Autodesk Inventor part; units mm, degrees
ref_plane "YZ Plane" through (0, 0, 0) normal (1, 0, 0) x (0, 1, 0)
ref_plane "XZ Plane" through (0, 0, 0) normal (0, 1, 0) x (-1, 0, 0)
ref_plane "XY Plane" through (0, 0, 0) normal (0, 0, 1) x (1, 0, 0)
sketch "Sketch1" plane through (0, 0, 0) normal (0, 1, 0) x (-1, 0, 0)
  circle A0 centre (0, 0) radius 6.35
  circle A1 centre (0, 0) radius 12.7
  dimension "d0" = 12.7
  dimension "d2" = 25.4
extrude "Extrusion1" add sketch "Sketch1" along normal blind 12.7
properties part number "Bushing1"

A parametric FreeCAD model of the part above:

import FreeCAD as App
import Part
import Sketcher
Q = App.Units.Quantity

doc = App.newDocument("Part")
body = doc.addObject("PartDesign::Body", "Body")

# Sketch on XZ plane
sketch1 = body.newObject("Sketcher::SketchObject", "Sketch")
sketch1.AttachmentSupport = (doc.getObject("XZ_Plane"), [""])
sketch1.MapMode = "FlatFace"
sketch1.addGeometry(Part.Circle(App.Vector(0, 0, 0), App.Vector(0, 0, 1), 13), False)
sketch1.addGeometry(Part.Circle(App.Vector(0, 0, 0), App.Vector(0, 0, 1), 6), False)
sketch1.addConstraint(Sketcher.Constraint("Coincident", 0, 3, -1, 1))
sketch1.addConstraint(Sketcher.Constraint("Coincident", 1, 3, -1, 1))
sketch1.addConstraint(Sketcher.Constraint("Diameter", 0, Q("1 in")))
sketch1.addConstraint(Sketcher.Constraint("Diameter", 1, Q("0.5 in")))
pad1 = body.newObject("PartDesign::Pad", "Pad")
pad1.Profile = sketch1
pad1.Length = Q("0.5 in")
pad1.Reversed = True

doc.recompute()
